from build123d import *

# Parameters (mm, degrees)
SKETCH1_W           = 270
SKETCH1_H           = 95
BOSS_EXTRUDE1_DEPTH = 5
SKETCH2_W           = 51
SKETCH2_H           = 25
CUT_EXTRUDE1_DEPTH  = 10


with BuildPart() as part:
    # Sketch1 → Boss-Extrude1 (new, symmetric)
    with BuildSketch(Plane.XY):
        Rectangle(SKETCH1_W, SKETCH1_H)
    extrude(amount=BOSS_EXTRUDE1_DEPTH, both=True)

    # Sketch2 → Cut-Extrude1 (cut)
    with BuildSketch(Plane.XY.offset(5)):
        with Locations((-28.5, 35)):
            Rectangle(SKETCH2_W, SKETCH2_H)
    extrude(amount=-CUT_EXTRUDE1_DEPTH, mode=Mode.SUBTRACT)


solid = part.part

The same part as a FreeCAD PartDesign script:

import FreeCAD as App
import Part
import Sketcher

V = App.Vector

doc = App.newDocument("Part")
params = doc.addObject("Spreadsheet::Sheet", "Params")
for row, (alias, value) in enumerate([
    ("sketch1_width", "270 mm"),
    ("sketch1_height", "95 mm"),
    ("pad1_length", "10 mm"),
    ("sketch2_width", "51 mm"),
    ("sketch2_height", "25 mm"),
    ("pocket1_length", "10 mm"),
], start=1):
    params.set(f"A{row}", alias)
    params.set(f"B{row}", "=" + value)
    params.setAlias(f"B{row}", alias)

body = doc.addObject("PartDesign::Body", "Body")

# Sketch on XY plane
sketch1 = body.newObject("Sketcher::SketchObject", "Sketch")
sketch1.AttachmentSupport = (doc.getObject("XY_Plane"), [""])
sketch1.MapMode = "FlatFace"
sketch1.addGeometry(Part.LineSegment(V(-135, 48, 0), V(-135, -48, 0)), False)
sketch1.addGeometry(Part.LineSegment(V(-135, -48, 0), V(135, -48, 0)), False)
sketch1.addGeometry(Part.LineSegment(V(135, -48, 0), V(135, 48, 0)), False)
sketch1.addGeometry(Part.LineSegment(V(135, 48, 0), V(-135, 48, 0)), False)
sketch1.addConstraint(Sketcher.Constraint("Coincident", 0, 2, 1, 1))
sketch1.addConstraint(Sketcher.Constraint("Coincident", 1, 2, 2, 1))
sketch1.addConstraint(Sketcher.Constraint("Coincident", 2, 2, 3, 1))
sketch1.addConstraint(Sketcher.Constraint("Coincident", 3, 2, 0, 1))
sketch1.addConstraint(Sketcher.Constraint("Vertical", 0))
sketch1.addConstraint(Sketcher.Constraint("Horizontal", 1))
sketch1.addConstraint(Sketcher.Constraint("Vertical", 2))
sketch1.addConstraint(Sketcher.Constraint("Horizontal", 3))
sketch1.addConstraint(Sketcher.Constraint("Symmetric", 0, 2, 2, 2, -1, 1))
sketch1.addConstraint(Sketcher.Constraint("DistanceX", 1, 1, 1, 2, 270.0))
sketch1.addConstraint(Sketcher.Constraint("DistanceY", 0, 2, 0, 1, 95.0))
sketch1.setExpression("Constraints[9]", "Params.sketch1_width")
sketch1.setExpression("Constraints[10]", "Params.sketch1_height")
pad1 = body.newObject("PartDesign::Pad", "Pad")
pad1.Profile = sketch1
pad1.setExpression("Length", "Params.pad1_length")
pad1.Midplane = True

# Sketch on XY plane
sketch2 = body.newObject("Sketcher::SketchObject", "Sketch001")
sketch2.AttachmentSupport = (doc.getObject("XY_Plane"), [""])
sketch2.MapMode = "FlatFace"
sketch2.AttachmentOffset = App.Placement(V(0, 0, 5), App.Rotation())
sketch2.addGeometry(Part.LineSegment(V(-54, 48, 0), V(-54, 22, 0)), False)
sketch2.addGeometry(Part.LineSegment(V(-54, 22, 0), V(-3, 22, 0)), False)
sketch2.addGeometry(Part.LineSegment(V(-3, 22, 0), V(-3, 48, 0)), False)
sketch2.addGeometry(Part.LineSegment(V(-3, 48, 0), V(-54, 48, 0)), False)
sketch2.addConstraint(Sketcher.Constraint("Coincident", 0, 2, 1, 1))
sketch2.addConstraint(Sketcher.Constraint("Coincident", 1, 2, 2, 1))
sketch2.addConstraint(Sketcher.Constraint("Coincident", 2, 2, 3, 1))
sketch2.addConstraint(Sketcher.Constraint("Coincident", 3, 2, 0, 1))
sketch2.addConstraint(Sketcher.Constraint("Vertical", 0))
sketch2.addConstraint(Sketcher.Constraint("Horizontal", 1))
sketch2.addConstraint(Sketcher.Constraint("Vertical", 2))
sketch2.addConstraint(Sketcher.Constraint("Horizontal", 3))
sketch2.addConstraint(Sketcher.Constraint("DistanceX", 1, 1, 1, 2, 51.0))
sketch2.addConstraint(Sketcher.Constraint("DistanceY", 0, 2, 0, 1, 25.0))
sketch2.addConstraint(Sketcher.Constraint("DistanceX", 0, 2, -1, 1, 54.0))
sketch2.addConstraint(Sketcher.Constraint("DistanceY", -1, 1, 0, 2, 22.5))
sketch2.setExpression("Constraints[8]", "Params.sketch2_width")
sketch2.setExpression("Constraints[9]", "Params.sketch2_height")
pocket1 = body.newObject("PartDesign::Pocket", "Pocket")
pocket1.Profile = sketch2
pocket1.setExpression("Length", "Params.pocket1_length")

doc.recompute()
